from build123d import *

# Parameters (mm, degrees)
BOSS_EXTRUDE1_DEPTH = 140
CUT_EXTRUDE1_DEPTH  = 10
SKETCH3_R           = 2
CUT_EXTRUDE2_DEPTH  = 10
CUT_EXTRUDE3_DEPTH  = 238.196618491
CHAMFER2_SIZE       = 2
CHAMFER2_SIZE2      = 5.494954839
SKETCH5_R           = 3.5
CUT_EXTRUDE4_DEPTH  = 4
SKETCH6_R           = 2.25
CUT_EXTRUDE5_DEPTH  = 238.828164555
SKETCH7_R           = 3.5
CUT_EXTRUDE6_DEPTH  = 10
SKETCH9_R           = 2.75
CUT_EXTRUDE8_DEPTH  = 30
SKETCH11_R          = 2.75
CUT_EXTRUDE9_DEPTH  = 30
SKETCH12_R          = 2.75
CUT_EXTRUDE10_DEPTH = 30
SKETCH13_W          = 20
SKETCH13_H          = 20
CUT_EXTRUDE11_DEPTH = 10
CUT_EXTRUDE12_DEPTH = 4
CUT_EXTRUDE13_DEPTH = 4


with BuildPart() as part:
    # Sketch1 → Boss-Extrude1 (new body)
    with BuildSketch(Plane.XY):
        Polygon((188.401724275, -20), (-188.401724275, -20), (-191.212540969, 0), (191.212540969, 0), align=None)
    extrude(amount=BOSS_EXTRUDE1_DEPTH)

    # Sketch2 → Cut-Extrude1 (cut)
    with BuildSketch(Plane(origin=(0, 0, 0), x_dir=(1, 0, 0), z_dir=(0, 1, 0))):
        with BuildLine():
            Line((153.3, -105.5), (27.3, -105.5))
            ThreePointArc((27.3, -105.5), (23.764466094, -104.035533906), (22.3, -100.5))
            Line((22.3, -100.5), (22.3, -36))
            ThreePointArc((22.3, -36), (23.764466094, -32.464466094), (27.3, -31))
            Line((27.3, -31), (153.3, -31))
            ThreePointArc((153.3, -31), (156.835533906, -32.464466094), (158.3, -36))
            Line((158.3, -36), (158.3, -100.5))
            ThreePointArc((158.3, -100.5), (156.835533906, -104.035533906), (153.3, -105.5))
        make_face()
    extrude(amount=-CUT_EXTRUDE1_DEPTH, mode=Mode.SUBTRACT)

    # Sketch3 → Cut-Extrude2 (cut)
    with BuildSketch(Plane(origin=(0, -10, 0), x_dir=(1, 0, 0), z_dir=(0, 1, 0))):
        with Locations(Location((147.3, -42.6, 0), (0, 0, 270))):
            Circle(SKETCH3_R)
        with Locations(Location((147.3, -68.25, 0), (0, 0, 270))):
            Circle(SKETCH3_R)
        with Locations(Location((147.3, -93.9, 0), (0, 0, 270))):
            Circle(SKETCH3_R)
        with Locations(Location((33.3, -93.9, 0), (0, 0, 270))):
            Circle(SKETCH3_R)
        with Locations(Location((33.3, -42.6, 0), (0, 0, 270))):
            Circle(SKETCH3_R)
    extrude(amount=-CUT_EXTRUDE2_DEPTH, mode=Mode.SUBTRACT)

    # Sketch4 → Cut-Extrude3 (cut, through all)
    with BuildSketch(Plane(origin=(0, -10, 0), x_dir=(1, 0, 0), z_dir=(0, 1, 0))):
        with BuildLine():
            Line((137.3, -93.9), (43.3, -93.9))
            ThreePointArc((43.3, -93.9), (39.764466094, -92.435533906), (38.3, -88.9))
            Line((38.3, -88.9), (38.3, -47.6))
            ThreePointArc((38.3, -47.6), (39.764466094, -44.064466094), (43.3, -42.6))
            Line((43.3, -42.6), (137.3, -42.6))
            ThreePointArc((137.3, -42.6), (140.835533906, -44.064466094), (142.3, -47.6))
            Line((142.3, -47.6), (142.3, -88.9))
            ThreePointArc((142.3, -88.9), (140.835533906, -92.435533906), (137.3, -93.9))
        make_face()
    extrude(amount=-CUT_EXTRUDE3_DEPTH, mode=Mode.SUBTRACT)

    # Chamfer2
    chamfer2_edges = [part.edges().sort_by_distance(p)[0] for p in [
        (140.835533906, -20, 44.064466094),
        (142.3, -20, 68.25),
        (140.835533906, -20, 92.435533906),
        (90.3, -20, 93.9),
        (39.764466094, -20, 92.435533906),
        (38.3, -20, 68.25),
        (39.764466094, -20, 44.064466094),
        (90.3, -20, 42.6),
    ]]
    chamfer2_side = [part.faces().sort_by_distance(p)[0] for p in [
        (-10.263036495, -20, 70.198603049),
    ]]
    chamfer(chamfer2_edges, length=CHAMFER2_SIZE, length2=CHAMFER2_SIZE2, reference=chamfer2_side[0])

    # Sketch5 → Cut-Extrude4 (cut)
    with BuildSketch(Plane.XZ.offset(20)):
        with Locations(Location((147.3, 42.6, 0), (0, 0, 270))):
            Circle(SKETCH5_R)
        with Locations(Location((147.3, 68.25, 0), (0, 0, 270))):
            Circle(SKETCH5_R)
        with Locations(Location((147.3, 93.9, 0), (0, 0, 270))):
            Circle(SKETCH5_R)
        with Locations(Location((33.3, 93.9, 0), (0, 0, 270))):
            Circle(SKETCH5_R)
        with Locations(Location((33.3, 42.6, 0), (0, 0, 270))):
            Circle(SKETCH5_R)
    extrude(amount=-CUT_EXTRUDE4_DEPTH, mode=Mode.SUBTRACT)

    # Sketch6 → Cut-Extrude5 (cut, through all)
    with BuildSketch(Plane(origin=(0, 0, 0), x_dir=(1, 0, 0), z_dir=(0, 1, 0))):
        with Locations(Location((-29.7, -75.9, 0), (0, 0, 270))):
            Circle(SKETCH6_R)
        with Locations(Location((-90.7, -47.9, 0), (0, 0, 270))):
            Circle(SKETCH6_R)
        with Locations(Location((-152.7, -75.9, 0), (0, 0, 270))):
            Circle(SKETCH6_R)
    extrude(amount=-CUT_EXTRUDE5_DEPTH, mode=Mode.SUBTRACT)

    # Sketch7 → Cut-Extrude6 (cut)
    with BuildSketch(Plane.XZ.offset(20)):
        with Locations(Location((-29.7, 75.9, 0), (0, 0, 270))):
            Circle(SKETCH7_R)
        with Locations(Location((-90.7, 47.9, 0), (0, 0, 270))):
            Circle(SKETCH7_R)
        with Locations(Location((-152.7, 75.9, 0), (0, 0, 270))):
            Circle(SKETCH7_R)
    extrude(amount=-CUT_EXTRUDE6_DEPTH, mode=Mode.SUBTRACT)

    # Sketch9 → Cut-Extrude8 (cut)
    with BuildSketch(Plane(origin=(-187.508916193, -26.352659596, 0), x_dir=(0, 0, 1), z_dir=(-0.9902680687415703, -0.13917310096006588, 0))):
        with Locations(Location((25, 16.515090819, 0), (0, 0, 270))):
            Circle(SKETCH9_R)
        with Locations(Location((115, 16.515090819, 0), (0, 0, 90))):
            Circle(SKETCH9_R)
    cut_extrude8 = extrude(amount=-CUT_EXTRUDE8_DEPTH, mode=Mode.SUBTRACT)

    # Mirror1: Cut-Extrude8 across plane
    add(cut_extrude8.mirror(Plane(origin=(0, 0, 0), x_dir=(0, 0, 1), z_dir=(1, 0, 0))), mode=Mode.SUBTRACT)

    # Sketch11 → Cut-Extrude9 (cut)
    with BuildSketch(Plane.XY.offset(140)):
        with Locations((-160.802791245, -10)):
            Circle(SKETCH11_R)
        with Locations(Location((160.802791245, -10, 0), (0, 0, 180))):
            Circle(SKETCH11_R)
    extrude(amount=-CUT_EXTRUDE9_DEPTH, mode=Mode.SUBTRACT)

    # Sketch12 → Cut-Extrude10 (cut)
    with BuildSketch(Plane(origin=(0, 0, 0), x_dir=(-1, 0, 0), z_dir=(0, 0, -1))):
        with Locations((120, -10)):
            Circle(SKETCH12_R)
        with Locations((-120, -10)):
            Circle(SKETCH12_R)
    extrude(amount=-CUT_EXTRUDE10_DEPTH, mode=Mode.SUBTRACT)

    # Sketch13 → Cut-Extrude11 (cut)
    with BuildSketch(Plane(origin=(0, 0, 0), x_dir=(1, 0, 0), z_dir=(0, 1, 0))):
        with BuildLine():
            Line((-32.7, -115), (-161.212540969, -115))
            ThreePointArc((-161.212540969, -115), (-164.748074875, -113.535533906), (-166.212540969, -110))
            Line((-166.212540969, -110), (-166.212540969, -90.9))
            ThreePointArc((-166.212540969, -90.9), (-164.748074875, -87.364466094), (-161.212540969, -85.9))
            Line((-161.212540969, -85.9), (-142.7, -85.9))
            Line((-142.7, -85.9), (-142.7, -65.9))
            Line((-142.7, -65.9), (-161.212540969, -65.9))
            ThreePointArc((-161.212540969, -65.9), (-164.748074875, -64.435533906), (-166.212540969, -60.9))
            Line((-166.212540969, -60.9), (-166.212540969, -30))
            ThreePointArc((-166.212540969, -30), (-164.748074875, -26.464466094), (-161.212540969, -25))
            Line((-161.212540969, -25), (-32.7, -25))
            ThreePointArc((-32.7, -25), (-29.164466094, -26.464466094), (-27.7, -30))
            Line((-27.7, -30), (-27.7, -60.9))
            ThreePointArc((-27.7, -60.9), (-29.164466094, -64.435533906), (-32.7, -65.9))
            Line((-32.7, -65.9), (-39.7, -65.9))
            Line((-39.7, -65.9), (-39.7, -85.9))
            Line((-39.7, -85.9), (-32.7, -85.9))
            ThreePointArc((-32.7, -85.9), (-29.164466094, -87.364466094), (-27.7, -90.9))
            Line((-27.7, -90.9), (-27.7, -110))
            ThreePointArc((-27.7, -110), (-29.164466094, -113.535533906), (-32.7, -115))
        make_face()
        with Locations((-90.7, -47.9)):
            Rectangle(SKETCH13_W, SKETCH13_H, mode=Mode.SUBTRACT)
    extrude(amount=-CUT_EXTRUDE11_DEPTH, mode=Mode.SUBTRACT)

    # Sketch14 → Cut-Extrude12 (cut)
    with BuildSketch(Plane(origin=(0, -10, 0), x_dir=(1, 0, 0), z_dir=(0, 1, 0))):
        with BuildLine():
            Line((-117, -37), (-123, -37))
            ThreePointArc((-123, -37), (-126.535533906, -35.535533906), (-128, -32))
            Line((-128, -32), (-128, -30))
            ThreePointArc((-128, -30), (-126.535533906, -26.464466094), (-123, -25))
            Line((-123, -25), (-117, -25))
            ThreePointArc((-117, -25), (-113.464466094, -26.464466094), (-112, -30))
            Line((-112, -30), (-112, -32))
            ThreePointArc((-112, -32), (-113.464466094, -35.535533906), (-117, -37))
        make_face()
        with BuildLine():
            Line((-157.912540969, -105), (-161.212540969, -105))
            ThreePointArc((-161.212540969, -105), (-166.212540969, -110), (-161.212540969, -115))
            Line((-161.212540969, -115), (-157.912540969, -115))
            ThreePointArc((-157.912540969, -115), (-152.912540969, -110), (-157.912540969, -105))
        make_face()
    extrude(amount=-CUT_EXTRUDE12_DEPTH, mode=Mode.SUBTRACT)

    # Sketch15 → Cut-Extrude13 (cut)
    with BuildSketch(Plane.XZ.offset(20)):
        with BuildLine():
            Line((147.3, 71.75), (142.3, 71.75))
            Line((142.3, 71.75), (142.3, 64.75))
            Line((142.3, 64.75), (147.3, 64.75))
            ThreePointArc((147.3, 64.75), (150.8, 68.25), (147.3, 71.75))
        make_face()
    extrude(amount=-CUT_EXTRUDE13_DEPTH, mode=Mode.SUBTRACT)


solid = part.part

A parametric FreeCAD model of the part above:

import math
import FreeCAD as App
import Part
import Sketcher
from FreeCAD import Vector
Q = App.Units.Quantity


def edges_at(feature, points):
    """Names of the edges that pass closest to the given points."""
    edges = feature.Shape.Edges
    near = lambda p: min(range(len(edges)), key=lambda i: edges[i].distToShape(Part.Vertex(*p))[0])
    return sorted({f"Edge{near(p) + 1}" for p in points})

doc = App.newDocument("Part")
body = doc.addObject("PartDesign::Body", "Body")

sketch1 = body.newObject("Sketcher::SketchObject", "Sketch")
sketch1.AttachmentSupport = (doc.getObject("XY_Plane"), [""])
sketch1.MapMode = "FlatFace"
sketch1.addGeometry([
    Part.LineSegment(Vector(-188, -20, 0), Vector(188, -20, 0)),
    Part.LineSegment(Vector(188, -20, 0), Vector(191, 0, 0)),
    Part.LineSegment(Vector(191, 0, 0), Vector(-191, 0, 0)),
    Part.LineSegment(Vector(-191, 0, 0), Vector(-188, -20, 0)),
], False)
sketch1.addConstraint([
    Sketcher.Constraint("Coincident", 0, 2, 1, 1),
    Sketcher.Constraint("Coincident", 1, 2, 2, 1),
    Sketcher.Constraint("Coincident", 2, 2, 3, 1),
    Sketcher.Constraint("Coincident", 3, 2, 0, 1),
    Sketcher.Constraint("Horizontal", 0),
    Sketcher.Constraint("Horizontal", 2),
    Sketcher.Constraint("Symmetric", 1, 2, 2, 2, -1, 1),
    Sketcher.Constraint("Equal", 1, 3),
    Sketcher.Constraint("Angle", 1, Q("82 deg")),
    Sketcher.Constraint("DistanceY", 0, 2, -1, 1, Q("20 mm")),
    Sketcher.Constraint("DistanceX", 0, 1, 0, 2, Q("376.803449 mm")),
])
pad1 = body.newObject("PartDesign::Pad", "Pad")
pad1.Profile = sketch1
pad1.Length = 140

sketch2 = body.newObject("Sketcher::SketchObject", "Sketch001")
sketch2.AttachmentSupport = (doc.getObject("XZ_Plane"), [""])
sketch2.MapMode = "FlatFace"
sketch2.addGeometry([
    Part.LineSegment(Vector(27, 106, 0), Vector(153, 106, 0)),
    Part.ArcOfCircle(Part.Circle(Vector(153, 100, 0), Vector(0, 0, 1), 5), math.radians(0), math.radians(90)),
    Part.LineSegment(Vector(158, 100, 0), Vector(158, 36, 0)),
    Part.ArcOfCircle(Part.Circle(Vector(153, 36, 0), Vector(0, 0, 1), 5), math.radians(-90), math.radians(0)),
    Part.LineSegment(Vector(153, 31, 0), Vector(27, 31, 0)),
    Part.ArcOfCircle(Part.Circle(Vector(27, 36, 0), Vector(0, 0, 1), 5), math.radians(180), math.radians(270)),
    Part.LineSegment(Vector(22, 36, 0), Vector(22, 100, 0)),
    Part.ArcOfCircle(Part.Circle(Vector(27, 100, 0), Vector(0, 0, 1), 5), math.radians(90), math.radians(180)),
], False)
sketch2.addConstraint([
    Sketcher.Constraint("Tangent", 0, 2, 1, 2),
    Sketcher.Constraint("Tangent", 1, 1, 2, 1),
    Sketcher.Constraint("Tangent", 2, 2, 3, 2),
    Sketcher.Constraint("Tangent", 3, 1, 4, 1),
    Sketcher.Constraint("Tangent", 4, 2, 5, 2),
    Sketcher.Constraint("Tangent", 5, 1, 6, 1),
    Sketcher.Constraint("Tangent", 6, 2, 7, 2),
    Sketcher.Constraint("Tangent", 7, 1, 0, 1),
    Sketcher.Constraint("Horizontal", 0),
    Sketcher.Constraint("Vertical", 2),
    Sketcher.Constraint("Horizontal", 4),
    Sketcher.Constraint("Vertical", 6),
    Sketcher.Constraint("Equal", 1, 3),
    Sketcher.Constraint("Equal", 3, 5),
    Sketcher.Constraint("Equal", 5, 7),
    Sketcher.Constraint("Radius", 1, Q("5 mm")),
    Sketcher.Constraint("DistanceX", 0, 1, 0, 2, Q("126 mm")),
    Sketcher.Constraint("DistanceY", 2, 2, 2, 1, Q("64.5 mm")),
    Sketcher.Constraint("DistanceY", -1, 1, 3, 3, Q("36 mm")),
    Sketcher.Constraint("DistanceX", -1, 1, 1, 3, Q("153.3 mm")),
])
pocket1 = body.newObject("PartDesign::Pocket", "Pocket")
pocket1.Profile = sketch2
pocket1.Length = 10
pocket1.Reversed = True

sketch3 = body.newObject("Sketcher::SketchObject", "Sketch002")
sketch3.AttachmentSupport = (doc.getObject("XZ_Plane"), [""])
sketch3.MapMode = "FlatFace"
sketch3.AttachmentOffset = App.Placement(Vector(0, 0, 10), App.Rotation())
sketch3.addGeometry([
    Part.Circle(Vector(147.3, 42.6, 0), Vector(0, 0, 1), 2),
    Part.Circle(Vector(147.3, 68.2, 0), Vector(0, 0, 1), 2),
    Part.Circle(Vector(147.3, 93.9, 0), Vector(0, 0, 1), 2),
    Part.Circle(Vector(33.3, 93.9, 0), Vector(0, 0, 1), 2),
    Part.Circle(Vector(33.3, 42.6, 0), Vector(0, 0, 1), 2),
], False)
sketch3.addConstraint([
    Sketcher.Constraint("Equal", 0, 1),
    Sketcher.Constraint("Equal", 1, 2),
    Sketcher.Constraint("Equal", 2, 3),
    Sketcher.Constraint("Equal", 3, 4),
    Sketcher.Constraint("Horizontal", 2, 3, 3, 3),
    Sketcher.Constraint("Horizontal", 0, 3, 4, 3),
    Sketcher.Constraint("Vertical", 0, 3, 1, 3),
    Sketcher.Constraint("Vertical", 1, 3, 2, 3),
    Sketcher.Constraint("Vertical", 3, 3, 4, 3),
    Sketcher.Constraint("Diameter", 0, Q("4 mm")),
    Sketcher.Constraint("DistanceX", 3, 3, 2, 3, Q("114 mm")),
    Sketcher.Constraint("DistanceX", -1, 1, 0, 3, Q("147.3 mm")),
    Sketcher.Constraint("DistanceY", -1, 1, 0, 3, Q("42.6 mm")),
    Sketcher.Constraint("DistanceY", -1, 1, 2, 3, Q("93.9 mm")),
    Sketcher.Constraint("DistanceY", -1, 1, 1, 3, Q("68.25 mm")),
])
pocket2 = body.newObject("PartDesign::Pocket", "Pocket001")
pocket2.Profile = sketch3
pocket2.Length = 10
pocket2.Reversed = True

sketch4 = body.newObject("Sketcher::SketchObject", "Sketch003")
sketch4.AttachmentSupport = (doc.getObject("XZ_Plane"), [""])
sketch4.MapMode = "FlatFace"
sketch4.AttachmentOffset = App.Placement(Vector(0, 0, 10), App.Rotation())
sketch4.addGeometry([
    Part.LineSegment(Vector(43, 94, 0), Vector(137, 94, 0)),
    Part.ArcOfCircle(Part.Circle(Vector(137, 89, 0), Vector(0, 0, 1), 5), math.radians(0), math.radians(90)),
    Part.LineSegment(Vector(142, 89, 0), Vector(142, 48, 0)),
    Part.ArcOfCircle(Part.Circle(Vector(137, 48, 0), Vector(0, 0, 1), 5), math.radians(-90), math.radians(0)),
    Part.LineSegment(Vector(137, 43, 0), Vector(43, 43, 0)),
    Part.ArcOfCircle(Part.Circle(Vector(43, 48, 0), Vector(0, 0, 1), 5), math.radians(180), math.radians(270)),
    Part.LineSegment(Vector(38, 48, 0), Vector(38, 89, 0)),
    Part.ArcOfCircle(Part.Circle(Vector(43, 89, 0), Vector(0, 0, 1), 5), math.radians(90), math.radians(180)),
], False)
sketch4.addConstraint([
    Sketcher.Constraint("Tangent", 0, 2, 1, 2),
    Sketcher.Constraint("Tangent", 1, 1, 2, 1),
    Sketcher.Constraint("Tangent", 2, 2, 3, 2),
    Sketcher.Constraint("Tangent", 3, 1, 4, 1),
    Sketcher.Constraint("Tangent", 4, 2, 5, 2),
    Sketcher.Constraint("Tangent", 5, 1, 6, 1),
    Sketcher.Constraint("Tangent", 6, 2, 7, 2),
    Sketcher.Constraint("Tangent", 7, 1, 0, 1),
    Sketcher.Constraint("Horizontal", 0),
    Sketcher.Constraint("Vertical", 2),
    Sketcher.Constraint("Horizontal", 4),
    Sketcher.Constraint("Vertical", 6),
    Sketcher.Constraint("Equal", 1, 3),
    Sketcher.Constraint("Equal", 3, 5),
    Sketcher.Constraint("Equal", 5, 7),
    Sketcher.Constraint("Radius", 1, Q("5 mm")),
    Sketcher.Constraint("DistanceX", 0, 1, 0, 2, Q("94 mm")),
    Sketcher.Constraint("DistanceY", 2, 2, 2, 1, Q("41.3 mm")),
    Sketcher.Constraint("DistanceX", -1, 1, 1, 3, Q("137.3 mm")),
    Sketcher.Constraint("DistanceY", -1, 1, 1, 3, Q("88.9 mm")),
])
pocket3 = body.newObject("PartDesign::Pocket", "Pocket002")
pocket3.Profile = sketch4
pocket3.Type = "ThroughAll"
pocket3.Reversed = True
doc.recompute()

chamfer = body.newObject("PartDesign::Chamfer", "Chamfer")
chamfer.Base = (pocket3, edges_at(pocket3, [
    (140.836, -20, 44.064),
    (142.3, -20, 68.25),
    (140.836, -20, 92.436),
    (90.3, -20, 93.9),
    (39.764, -20, 92.436),
    (38.3, -20, 68.25),
    (39.764, -20, 44.064),
    (90.3, -20, 42.6),
]))
chamfer.ChamferType = "Two distances"
chamfer.Size = 2
chamfer.Size2 = 5.494955

sketch5 = body.newObject("Sketcher::SketchObject", "Sketch004")
sketch5.AttachmentSupport = (doc.getObject("XZ_Plane"), [""])
sketch5.MapMode = "FlatFace"
sketch5.AttachmentOffset = App.Placement(Vector(0, 0, 20), App.Rotation())
sketch5.addGeometry([
    Part.Circle(Vector(147.3, 42.6, 0), Vector(0, 0, 1), 3.5),
    Part.Circle(Vector(147.3, 68.2, 0), Vector(0, 0, 1), 3.5),
    Part.Circle(Vector(147.3, 93.9, 0), Vector(0, 0, 1), 3.5),
    Part.Circle(Vector(33.3, 93.9, 0), Vector(0, 0, 1), 3.5),
    Part.Circle(Vector(33.3, 42.6, 0), Vector(0, 0, 1), 3.5),
], False)
sketch5.addConstraint([
    Sketcher.Constraint("Equal", 0, 1),
    Sketcher.Constraint("Equal", 1, 2),
    Sketcher.Constraint("Equal", 2, 3),
    Sketcher.Constraint("Equal", 3, 4),
    Sketcher.Constraint("Horizontal", 2, 3, 3, 3),
    Sketcher.Constraint("Horizontal", 0, 3, 4, 3),
    Sketcher.Constraint("Vertical", 0, 3, 1, 3),
    Sketcher.Constraint("Vertical", 1, 3, 2, 3),
    Sketcher.Constraint("Vertical", 3, 3, 4, 3),
    Sketcher.Constraint("Diameter", 0, Q("7 mm")),
    Sketcher.Constraint("DistanceX", 3, 3, 2, 3, Q("114 mm")),
    Sketcher.Constraint("DistanceX", -1, 1, 0, 3, Q("147.3 mm")),
    Sketcher.Constraint("DistanceY", -1, 1, 0, 3, Q("42.6 mm")),
    Sketcher.Constraint("DistanceY", -1, 1, 2, 3, Q("93.9 mm")),
    Sketcher.Constraint("DistanceY", -1, 1, 1, 3, Q("68.25 mm")),
])
pocket4 = body.newObject("PartDesign::Pocket", "Pocket003")
pocket4.Profile = sketch5
pocket4.Length = 4

sketch6 = body.newObject("Sketcher::SketchObject", "Sketch005")
sketch6.AttachmentSupport = (doc.getObject("XZ_Plane"), [""])
sketch6.MapMode = "FlatFace"
sketch6.addGeometry([
    Part.Circle(Vector(-29.7, 75.9, 0), Vector(0, 0, 1), 2.2),
    Part.Circle(Vector(-90.7, 47.9, 0), Vector(0, 0, 1), 2.2),
    Part.Circle(Vector(-152.7, 75.9, 0), Vector(0, 0, 1), 2.2),
], False)
sketch6.addConstraint([
    Sketcher.Constraint("Equal", 0, 1),
    Sketcher.Constraint("Equal", 1, 2),
    Sketcher.Constraint("Horizontal", 0, 3, 2, 3),
    Sketcher.Constraint("Diameter", 0, Q("4.5 mm")),
    Sketcher.Constraint("DistanceX", 1, 3, 0, 3, Q("61 mm")),
    Sketcher.Constraint("DistanceY", 1, 3, 0, 3, Q("28 mm")),
    Sketcher.Constraint("DistanceX", 2, 3, 1, 3, Q("62 mm")),
    Sketcher.Constraint("DistanceX", 0, 3, -1, 1, Q("29.7 mm")),
    Sketcher.Constraint("DistanceY", -1, 1, 0, 3, Q("75.9 mm")),
])
pocket5 = body.newObject("PartDesign::Pocket", "Pocket004")
pocket5.Profile = sketch6
pocket5.Type = "ThroughAll"
pocket5.Reversed = True

sketch7 = body.newObject("Sketcher::SketchObject", "Sketch006")
sketch7.AttachmentSupport = (doc.getObject("XZ_Plane"), [""])
sketch7.MapMode = "FlatFace"
sketch7.AttachmentOffset = App.Placement(Vector(0, 0, 20), App.Rotation())
sketch7.addGeometry([
    Part.Circle(Vector(-29.7, 75.9, 0), Vector(0, 0, 1), 3.5),
    Part.Circle(Vector(-90.7, 47.9, 0), Vector(0, 0, 1), 3.5),
    Part.Circle(Vector(-152.7, 75.9, 0), Vector(0, 0, 1), 3.5),
], False)
sketch7.addConstraint([
    Sketcher.Constraint("Equal", 0, 1),
    Sketcher.Constraint("Equal", 1, 2),
    Sketcher.Constraint("Horizontal", 0, 3, 2, 3),
    Sketcher.Constraint("Diameter", 0, Q("7 mm")),
    Sketcher.Constraint("DistanceX", 1, 3, 0, 3, Q("61 mm")),
    Sketcher.Constraint("DistanceY", 1, 3, 0, 3, Q("28 mm")),
    Sketcher.Constraint("DistanceX", 2, 3, 1, 3, Q("62 mm")),
    Sketcher.Constraint("DistanceX", 0, 3, -1, 1, Q("29.7 mm")),
    Sketcher.Constraint("DistanceY", -1, 1, 0, 3, Q("75.9 mm")),
])
pocket6 = body.newObject("PartDesign::Pocket", "Pocket005")
pocket6.Profile = sketch7
pocket6.Length = 10

sketch8 = body.newObject("Sketcher::SketchObject", "Sketch007")
sketch8.Placement = App.Placement(Vector(-187.508916, -26.35266, 0), App.Rotation(Vector(0, 0, 1), Vector(-0.139173101, 0.990268069, 0), Vector(-0.990268069, -0.139173101, 0), "ZXY"))
sketch8.addGeometry([
    Part.Circle(Vector(25, 16.5, 0), Vector(0, 0, 1), 2.8),
    Part.Circle(Vector(115, 16.5, 0), Vector(0, 0, 1), 2.8),
], False)
sketch8.addConstraint([
    Sketcher.Constraint("Equal", 0, 1),
    Sketcher.Constraint("Horizontal", 0, 3, 1, 3),
    Sketcher.Constraint("Diameter", 0, Q("5.5 mm")),
    Sketcher.Constraint("DistanceX", -1, 1, 0, 3, Q("25 mm")),
    Sketcher.Constraint("DistanceX", -1, 1, 1, 3, Q("115 mm")),
    Sketcher.Constraint("DistanceY", -1, 1, 0, 3, Q("16.515091 mm")),
])
pocket7 = body.newObject("PartDesign::Pocket", "Pocket006")
pocket7.Profile = sketch8
pocket7.Length = 30
doc.recompute()

mirrored = body.newObject("PartDesign::Mirrored", "Mirrored")
mirrored.Originals = [pocket7]
mirrored.MirrorPlane = (doc.getObject("YZ_Plane"), [""])
body.Tip = mirrored

sketch9 = body.newObject("Sketcher::SketchObject", "Sketch008")
sketch9.AttachmentSupport = (doc.getObject("XY_Plane"), [""])
sketch9.MapMode = "FlatFace"
sketch9.AttachmentOffset = App.Placement(Vector(0, 0, 140), App.Rotation())
sketch9.addGeometry([
    Part.Circle(Vector(-160.8, -10, 0), Vector(0, 0, 1), 2.8),
    Part.Circle(Vector(160.8, -10, 0), Vector(0, 0, 1), 2.8),
], False)
sketch9.addConstraint([
    Sketcher.Constraint("Equal", 0, 1),
    Sketcher.Constraint("Symmetric", 0, 3, 1, 3, -2),
    Sketcher.Constraint("Diameter", 0, Q("5.5 mm")),
    Sketcher.Constraint("DistanceY", 0, 3, -1, 1, Q("10 mm")),
    Sketcher.Constraint("DistanceX", 0, 3, -1, 1, Q("160.802791 mm")),
])
pocket8 = body.newObject("PartDesign::Pocket", "Pocket007")
pocket8.Profile = sketch9
pocket8.Length = 30

sketch10 = body.newObject("Sketcher::SketchObject", "Sketch009")
sketch10.AttachmentSupport = (doc.getObject("XY_Plane"), [""])
sketch10.MapMode = "FlatFace"
sketch10.addGeometry([
    Part.Circle(Vector(-120, -10, 0), Vector(0, 0, 1), 2.8),
    Part.Circle(Vector(120, -10, 0), Vector(0, 0, 1), 2.8),
], False)
sketch10.addConstraint([
    Sketcher.Constraint("Equal", 0, 1),
    Sketcher.Constraint("Symmetric", 0, 3, 1, 3, -2),
    Sketcher.Constraint("Diameter", 0, Q("5.5 mm")),
    Sketcher.Constraint("DistanceX", 0, 3, -1, 1, Q("120 mm")),
    Sketcher.Constraint("DistanceY", 0, 3, -1, 1, Q("10 mm")),
])
pocket9 = body.newObject("PartDesign::Pocket", "Pocket008")
pocket9.Profile = sketch10
pocket9.Length = 30
pocket9.Reversed = True

sketch11 = body.newObject("Sketcher::SketchObject", "Sketch010")
sketch11.AttachmentSupport = (doc.getObject("XZ_Plane"), [""])
sketch11.MapMode = "FlatFace"
sketch11.addGeometry([
    Part.LineSegment(Vector(-161, 115, 0), Vector(-33, 115, 0)),
    Part.ArcOfCircle(Part.Circle(Vector(-33, 110, 0), Vector(0, 0, 1), 5), math.radians(0), math.radians(90)),
    Part.LineSegment(Vector(-28, 110, 0), Vector(-28, 91, 0)),
    Part.ArcOfCircle(Part.Circle(Vector(-33, 91, 0), Vector(0, 0, 1), 5), math.radians(-90), math.radians(0)),
    Part.LineSegment(Vector(-33, 86, 0), Vector(-40, 86, 0)),
    Part.LineSegment(Vector(-40, 86, 0), Vector(-40, 66, 0)),
    Part.LineSegment(Vector(-40, 66, 0), Vector(-33, 66, 0)),
    Part.ArcOfCircle(Part.Circle(Vector(-33, 61, 0), Vector(0, 0, 1), 5), math.radians(0), math.radians(90)),
    Part.LineSegment(Vector(-28, 61, 0), Vector(-28, 30, 0)),
    Part.ArcOfCircle(Part.Circle(Vector(-33, 30, 0), Vector(0, 0, 1), 5), math.radians(-90), math.radians(0)),
    Part.LineSegment(Vector(-33, 25, 0), Vector(-161, 25, 0)),
    Part.ArcOfCircle(Part.Circle(Vector(-161, 30, 0), Vector(0, 0, 1), 5), math.radians(180), math.radians(270)),
    Part.LineSegment(Vector(-166, 30, 0), Vector(-166, 61, 0)),
    Part.ArcOfCircle(Part.Circle(Vector(-161, 61, 0), Vector(0, 0, 1), 5), math.radians(90), math.radians(180)),
    Part.LineSegment(Vector(-161, 66, 0), Vector(-143, 66, 0)),
    Part.LineSegment(Vector(-143, 66, 0), Vector(-143, 86, 0)),
    Part.LineSegment(Vector(-143, 86, 0), Vector(-161, 86, 0)),
    Part.ArcOfCircle(Part.Circle(Vector(-161, 91, 0), Vector(0, 0, 1), 5), math.radians(180), math.radians(270)),
    Part.LineSegment(Vector(-166, 91, 0), Vector(-166, 110, 0)),
    Part.ArcOfCircle(Part.Circle(Vector(-161, 110, 0), Vector(0, 0, 1), 5), math.radians(90), math.radians(180)),
    Part.LineSegment(Vector(-101, 58, 0), Vector(-101, 38, 0)),
    Part.LineSegment(Vector(-101, 38, 0), Vector(-81, 38, 0)),
    Part.LineSegment(Vector(-81, 38, 0), Vector(-81, 58, 0)),
    Part.LineSegment(Vector(-81, 58, 0), Vector(-101, 58, 0)),
], False)
sketch11.addConstraint([
    Sketcher.Constraint("Tangent", 0, 2, 1, 2),
    Sketcher.Constraint("Tangent", 1, 1, 2, 1),
    Sketcher.Constraint("Tangent", 2, 2, 3, 2),
    Sketcher.Constraint("Tangent", 3, 1, 4, 1),
    Sketcher.Constraint("Coincident", 4, 2, 5, 1),
    Sketcher.Constraint("Coincident", 5, 2, 6, 1),
    Sketcher.Constraint("Tangent", 6, 2, 7, 2),
    Sketcher.Constraint("Tangent", 7, 1, 8, 1),
    Sketcher.Constraint("Tangent", 8, 2, 9, 2),
    Sketcher.Constraint("Tangent", 9, 1, 10, 1),
    Sketcher.Constraint("Tangent", 10, 2, 11, 2),
    Sketcher.Constraint("Tangent", 11, 1, 12, 1),
    Sketcher.Constraint("Tangent", 12, 2, 13, 2),
    Sketcher.Constraint("Tangent", 13, 1, 14, 1),
    Sketcher.Constraint("Coincident", 14, 2, 15, 1),
    Sketcher.Constraint("Coincident", 15, 2, 16, 1),
    Sketcher.Constraint("Tangent", 16, 2, 17, 2),
    Sketcher.Constraint("Tangent", 17, 1, 18, 1),
    Sketcher.Constraint("Tangent", 18, 2, 19, 2),
    Sketcher.Constraint("Tangent", 19, 1, 0, 1),
    Sketcher.Constraint("Coincident", 20, 2, 21, 1),
    Sketcher.Constraint("Coincident", 21, 2, 22, 1),
    Sketcher.Constraint("Coincident", 22, 2, 23, 1),
    Sketcher.Constraint("Coincident", 23, 2, 20, 1),
    Sketcher.Constraint("Horizontal", 0),
    Sketcher.Constraint("Vertical", 2),
    Sketcher.Constraint("Horizontal", 4),
    Sketcher.Constraint("Vertical", 5),
    Sketcher.Constraint("Horizontal", 6),
    Sketcher.Constraint("Vertical", 8),
    Sketcher.Constraint("Horizontal", 10),
    Sketcher.Constraint("Vertical", 12),
    Sketcher.Constraint("Horizontal", 14),
    Sketcher.Constraint("Vertical", 15),
    Sketcher.Constraint("Horizontal", 16),
    Sketcher.Constraint("Vertical", 18),
    Sketcher.Constraint("Vertical", 20),
    Sketcher.Constraint("Horizontal", 21),
    Sketcher.Constraint("Vertical", 22),
    Sketcher.Constraint("Horizontal", 23),
    Sketcher.Constraint("Equal", 1, 3),
    Sketcher.Constraint("Equal", 3, 7),
    Sketcher.Constraint("Equal", 7, 9),
    Sketcher.Constraint("Equal", 9, 11),
    Sketcher.Constraint("Equal", 11, 13),
    Sketcher.Constraint("Equal", 13, 17),
    Sketcher.Constraint("Equal", 17, 19),
    Sketcher.Constraint("Horizontal", 7, 3, 13, 3),
    Sketcher.Constraint("Horizontal", 3, 3, 17, 3),
    Sketcher.Constraint("Vertical", 3, 3, 7, 3),
    Sketcher.Constraint("Vertical", 13, 3, 17, 3),
    Sketcher.Constraint("Equal", 23, 5),
    Sketcher.Constraint("Equal", 15, 20),
    Sketcher.Constraint("Radius", 1, Q("5 mm")),
    Sketcher.Constraint("DistanceX", 4, 2, 4, 1, Q("7 mm")),
    Sketcher.Constraint("DistanceX", 21, 1, 21, 2, Q("20 mm")),
    Sketcher.Constraint("DistanceY", 2, 2, 2, 1, Q("19.1 mm")),
    Sketcher.Constraint("DistanceY", 8, 2, 8, 1, Q("30.9 mm")),
    Sketcher.Constraint("DistanceY", -1, 1, 1, 3, Q("110 mm")),
    Sketcher.Constraint("DistanceX", 14, 2, 20, 2, Q("42 mm")),
    Sketcher.Constraint("DistanceY", 20, 2, 14, 2, Q("28 mm")),
    Sketcher.Constraint("DistanceX", 21, 2, 9, 3, Q("48 mm")),
    Sketcher.Constraint("DistanceX", 1, 3, -1, 1, Q("32.7 mm")),
    Sketcher.Constraint("DistanceX", 0, 1, 0, 2, Q("128.512541 mm")),
])
pocket10 = body.newObject("PartDesign::Pocket", "Pocket009")
pocket10.Profile = sketch11
pocket10.Length = 10
pocket10.Reversed = True

sketch12 = body.newObject("Sketcher::SketchObject", "Sketch011")
sketch12.AttachmentSupport = (doc.getObject("XZ_Plane"), [""])
sketch12.MapMode = "FlatFace"
sketch12.AttachmentOffset = App.Placement(Vector(0, 0, 10), App.Rotation())
sketch12.addGeometry([
    Part.LineSegment(Vector(-123, 37, 0), Vector(-117, 37, 0)),
    Part.ArcOfCircle(Part.Circle(Vector(-117, 32, 0), Vector(0, 0, 1), 5), math.radians(0), math.radians(90)),
    Part.LineSegment(Vector(-112, 32, 0), Vector(-112, 30, 0)),
    Part.ArcOfCircle(Part.Circle(Vector(-117, 30, 0), Vector(0, 0, 1), 5), math.radians(-90), math.radians(0)),
    Part.LineSegment(Vector(-117, 25, 0), Vector(-123, 25, 0)),
    Part.ArcOfCircle(Part.Circle(Vector(-123, 30, 0), Vector(0, 0, 1), 5), math.radians(180), math.radians(270)),
    Part.LineSegment(Vector(-128, 30, 0), Vector(-128, 32, 0)),
    Part.ArcOfCircle(Part.Circle(Vector(-123, 32, 0), Vector(0, 0, 1), 5), math.radians(90), math.radians(180)),
    Part.LineSegment(Vector(-157.9, 105, 0), Vector(-161.2, 105, 0)),
    Part.ArcOfCircle(Part.Circle(Vector(-161.2, 110, 0), Vector(0, 0, 1), 5), math.radians(90), math.radians(270)),
    Part.LineSegment(Vector(-161.2, 115, 0), Vector(-157.9, 115, 0)),
    Part.ArcOfCircle(Part.Circle(Vector(-157.9, 110, 0), Vector(0, 0, 1), 5), math.radians(-90), math.radians(90)),
], False)
sketch12.addConstraint([
    Sketcher.Constraint("Tangent", 0, 2, 1, 2),
    Sketcher.Constraint("Tangent", 1, 1, 2, 1),
    Sketcher.Constraint("Tangent", 2, 2, 3, 2),
    Sketcher.Constraint("Tangent", 3, 1, 4, 1),
    Sketcher.Constraint("Tangent", 4, 2, 5, 2),
    Sketcher.Constraint("Tangent", 5, 1, 6, 1),
    Sketcher.Constraint("Tangent", 6, 2, 7, 2),
    Sketcher.Constraint("Tangent", 7, 1, 0, 1),
    Sketcher.Constraint("Tangent", 8, 2, 9, 2),
    Sketcher.Constraint("Tangent", 9, 1, 10, 1),
    Sketcher.Constraint("Tangent", 10, 2, 11, 2),
    Sketcher.Constraint("Tangent", 11, 1, 8, 1),
    Sketcher.Constraint("Horizontal", 0),
    Sketcher.Constraint("Vertical", 2),
    Sketcher.Constraint("Horizontal", 4),
    Sketcher.Constraint("Vertical", 6),
    Sketcher.Constraint("Horizontal", 8),
    Sketcher.Constraint("Horizontal", 10),
    Sketcher.Constraint("Equal", 1, 3),
    Sketcher.Constraint("Equal", 3, 5),
    Sketcher.Constraint("Equal", 5, 7),
    Sketcher.Constraint("Equal", 7, 9),
    Sketcher.Constraint("Radius", 1, Q("5 mm")),
    Sketcher.Constraint("DistanceX", 0, 1, 0, 2, Q("6 mm")),
    Sketcher.Constraint("DistanceY", 2, 2, 2, 1, Q("2 mm")),
    Sketcher.Constraint("DistanceX", 8, 2, 8, 1, Q("3.3 mm")),
    Sketcher.Constraint("DistanceX", 1, 3, -1, 1, Q("117 mm")),
    Sketcher.Constraint("DistanceY", -1, 1, 1, 3, Q("32 mm")),
    Sketcher.Constraint("DistanceY", -1, 1, 9, 3, Q("110 mm")),
    Sketcher.Constraint("DistanceX", 9, 3, -1, 1, Q("161.212541 mm")),
])
pocket11 = body.newObject("PartDesign::Pocket", "Pocket010")
pocket11.Profile = sketch12
pocket11.Length = 4
pocket11.Reversed = True

sketch13 = body.newObject("Sketcher::SketchObject", "Sketch012")
sketch13.AttachmentSupport = (doc.getObject("XZ_Plane"), [""])
sketch13.MapMode = "FlatFace"
sketch13.AttachmentOffset = App.Placement(Vector(0, 0, 20), App.Rotation())
sketch13.addGeometry([
    Part.LineSegment(Vector(147.3, 71.8, 0), Vector(142.3, 71.8, 0)),
    Part.LineSegment(Vector(142.3, 71.8, 0), Vector(142.3, 64.8, 0)),
    Part.LineSegment(Vector(142.3, 64.8, 0), Vector(147.3, 64.8, 0)),
    Part.ArcOfCircle(Part.Circle(Vector(147.3, 68.2, 0), Vector(0, 0, 1), 3.5), math.radians(-90), math.radians(90)),
], False)
sketch13.addConstraint([
    Sketcher.Constraint("Coincident", 0, 2, 1, 1),
    Sketcher.Constraint("Coincident", 1, 2, 2, 1),
    Sketcher.Constraint("Tangent", 2, 2, 3, 1),
    Sketcher.Constraint("Tangent", 3, 2, 0, 1),
    Sketcher.Constraint("Horizontal", 0),
    Sketcher.Constraint("Vertical", 1),
    Sketcher.Constraint("Horizontal", 2),
    Sketcher.Constraint("Radius", 3, Q("3.5 mm")),
    Sketcher.Constraint("DistanceX", 0, 2, 0, 1, Q("5 mm")),
    Sketcher.Constraint("DistanceX", -1, 1, 3, 3, Q("147.3 mm")),
    Sketcher.Constraint("DistanceY", -1, 1, 3, 3, Q("68.25 mm")),
])
pocket12 = body.newObject("PartDesign::Pocket", "Pocket011")
pocket12.Profile = sketch13
pocket12.Length = 4

doc.recompute()
